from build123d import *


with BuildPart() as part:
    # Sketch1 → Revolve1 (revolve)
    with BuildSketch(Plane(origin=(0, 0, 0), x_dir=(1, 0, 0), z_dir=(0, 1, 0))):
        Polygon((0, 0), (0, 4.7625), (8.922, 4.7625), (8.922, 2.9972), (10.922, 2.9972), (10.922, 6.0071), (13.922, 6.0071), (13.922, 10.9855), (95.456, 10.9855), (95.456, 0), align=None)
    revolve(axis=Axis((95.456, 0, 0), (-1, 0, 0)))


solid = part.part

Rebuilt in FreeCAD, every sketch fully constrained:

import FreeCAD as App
import Part
import Sketcher
from FreeCAD import Vector
Q = App.Units.Quantity

doc = App.newDocument("Part")
body = doc.addObject("PartDesign::Body", "Body")

# Sketch on XZ plane
sketch1 = body.newObject("Sketcher::SketchObject", "Sketch")
sketch1.AttachmentSupport = (doc.getObject("XZ_Plane"), [""])
sketch1.MapMode = "FlatFace"
sketch1.addGeometry(Part.LineSegment(Vector(0, -4.8, 0), Vector(0, 0, 0)), False)
sketch1.addGeometry(Part.LineSegment(Vector(0, 0, 0), Vector(95.5, 0, 0)), False)
sketch1.addGeometry(Part.LineSegment(Vector(95.5, 0, 0), Vector(95.5, -11, 0)), False)
sketch1.addGeometry(Part.LineSegment(Vector(95.5, -11, 0), Vector(13.9, -11, 0)), False)
sketch1.addGeometry(Part.LineSegment(Vector(13.9, -11, 0), Vector(13.9, -6, 0)), False)
sketch1.addGeometry(Part.LineSegment(Vector(13.9, -6, 0), Vector(10.9, -6, 0)), False)
sketch1.addGeometry(Part.LineSegment(Vector(10.9, -6, 0), Vector(10.9, -3, 0)), False)
sketch1.addGeometry(Part.LineSegment(Vector(10.9, -3, 0), Vector(8.9, -3, 0)), False)
sketch1.addGeometry(Part.LineSegment(Vector(8.9, -3, 0), Vector(8.9, -4.8, 0)), False)
sketch1.addGeometry(Part.LineSegment(Vector(8.9, -4.8, 0), Vector(0, -4.8, 0)), False)
sketch1.addConstraint(Sketcher.Constraint("Coincident", 0, 2, 1, 1))
sketch1.addConstraint(Sketcher.Constraint("Coincident", 1, 2, 2, 1))
sketch1.addConstraint(Sketcher.Constraint("Coincident", 2, 2, 3, 1))
sketch1.addConstraint(Sketcher.Constraint("Coincident", 3, 2, 4, 1))
sketch1.addConstraint(Sketcher.Constraint("Coincident", 4, 2, 5, 1))
sketch1.addConstraint(Sketcher.Constraint("Coincident", 5, 2, 6, 1))
sketch1.addConstraint(Sketcher.Constraint("Coincident", 6, 2, 7, 1))
sketch1.addConstraint(Sketcher.Constraint("Coincident", 7, 2, 8, 1))
sketch1.addConstraint(Sketcher.Constraint("Coincident", 8, 2, 9, 1))
sketch1.addConstraint(Sketcher.Constraint("Coincident", 9, 2, 0, 1))
sketch1.addConstraint(Sketcher.Constraint("Vertical", 0))
sketch1.addConstraint(Sketcher.Constraint("Horizontal", 1))
sketch1.addConstraint(Sketcher.Constraint("Vertical", 2))
sketch1.addConstraint(Sketcher.Constraint("Horizontal", 3))
sketch1.addConstraint(Sketcher.Constraint("Vertical", 4))
sketch1.addConstraint(Sketcher.Constraint("Horizontal", 5))
sketch1.addConstraint(Sketcher.Constraint("Vertical", 6))
sketch1.addConstraint(Sketcher.Constraint("Horizontal", 7))
sketch1.addConstraint(Sketcher.Constraint("Vertical", 8))
sketch1.addConstraint(Sketcher.Constraint("Horizontal", 9))
sketch1.addConstraint(Sketcher.Constraint("Coincident", 0, 2, -1, 1))
sketch1.addConstraint(Sketcher.Constraint("DistanceX", 3, 2, 3, 1, Q("3.21 in")))
sketch1.addConstraint(Sketcher.Constraint("DistanceY", 0, 1, 0, 2, Q("0.1875 in")))
sketch1.addConstraint(Sketcher.Constraint("DistanceY", 4, 1, 4, 2, Q("0.196 in")))
sketch1.addConstraint(Sketcher.Constraint("DistanceX", -1, 1, 5, 2, Q("0.43 in")))
sketch1.addConstraint(Sketcher.Constraint("DistanceY", 2, 2, 2, 1, Q("0.4325 in")))
sketch1.addConstraint(Sketcher.Constraint("DistanceY", 6, 1, 6, 2, Q("0.1185 in")))
sketch1.addConstraint(Sketcher.Constraint("DistanceX", 1, 1, 1, 2, 95.456))
sketch1.addConstraint(Sketcher.Constraint("DistanceX", 7, 2, 7, 1, 2.0))
revolution = body.newObject("PartDesign::Revolution", "Revolution")
revolution.Profile = sketch1
revolution.ReferenceAxis = (sketch1, ["H_Axis"])
revolution.Angle = 360

doc.recompute()
